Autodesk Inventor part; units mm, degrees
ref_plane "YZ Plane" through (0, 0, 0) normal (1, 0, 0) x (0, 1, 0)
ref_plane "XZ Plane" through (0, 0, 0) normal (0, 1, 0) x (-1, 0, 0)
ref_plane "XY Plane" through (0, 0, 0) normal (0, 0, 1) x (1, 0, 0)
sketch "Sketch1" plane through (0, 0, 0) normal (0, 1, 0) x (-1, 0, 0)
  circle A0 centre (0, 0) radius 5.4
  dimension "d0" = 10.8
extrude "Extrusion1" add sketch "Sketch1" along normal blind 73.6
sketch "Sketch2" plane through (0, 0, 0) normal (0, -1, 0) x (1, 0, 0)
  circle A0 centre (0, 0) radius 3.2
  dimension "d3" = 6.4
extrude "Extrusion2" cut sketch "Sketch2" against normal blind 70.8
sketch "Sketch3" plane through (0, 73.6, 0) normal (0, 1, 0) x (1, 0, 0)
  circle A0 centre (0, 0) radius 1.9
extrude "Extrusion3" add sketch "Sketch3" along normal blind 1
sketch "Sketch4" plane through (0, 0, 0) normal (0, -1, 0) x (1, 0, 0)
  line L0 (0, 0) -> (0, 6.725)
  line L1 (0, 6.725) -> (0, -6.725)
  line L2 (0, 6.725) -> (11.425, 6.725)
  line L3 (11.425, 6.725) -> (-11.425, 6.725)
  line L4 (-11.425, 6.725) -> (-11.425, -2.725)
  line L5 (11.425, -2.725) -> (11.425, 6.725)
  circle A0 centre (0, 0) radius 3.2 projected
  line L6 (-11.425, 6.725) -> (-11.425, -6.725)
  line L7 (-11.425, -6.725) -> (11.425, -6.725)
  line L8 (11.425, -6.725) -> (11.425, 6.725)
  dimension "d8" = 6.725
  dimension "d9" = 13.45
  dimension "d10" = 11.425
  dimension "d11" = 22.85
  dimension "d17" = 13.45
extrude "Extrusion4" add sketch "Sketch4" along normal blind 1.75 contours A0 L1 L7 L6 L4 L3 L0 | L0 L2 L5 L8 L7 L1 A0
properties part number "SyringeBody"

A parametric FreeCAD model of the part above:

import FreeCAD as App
import Part
import Sketcher

V = App.Vector

doc = App.newDocument("Part")
body = doc.addObject("PartDesign::Body", "Body")

# Sketch on XZ plane
sketch1 = body.newObject("Sketcher::SketchObject", "Sketch")
sketch1.AttachmentSupport = (doc.getObject("XZ_Plane"), [""])
sketch1.MapMode = "FlatFace"
sketch1.addGeometry(Part.Circle(V(0, 0, 0), V(0, 0, 1), 5), False)
sketch1.addConstraint([
    Sketcher.Constraint("Coincident", 0, 3, -1, 1),
    Sketcher.Constraint("Diameter", 0, 10.8),
])
pad1 = body.newObject("PartDesign::Pad", "Pad")
pad1.Profile = sketch1
pad1.Length = 73.6
pad1.Reversed = True

# Sketch on XZ plane
sketch2 = body.newObject("Sketcher::SketchObject", "Sketch001")
sketch2.AttachmentSupport = (doc.getObject("XZ_Plane"), [""])
sketch2.MapMode = "FlatFace"
sketch2.addGeometry(Part.Circle(V(0, 0, 0), V(0, 0, 1), 3.2), False)
sketch2.addConstraint([
    Sketcher.Constraint("Coincident", 0, 3, -1, 1),
    Sketcher.Constraint("Diameter", 0, 6.4),
])
pocket1 = body.newObject("PartDesign::Pocket", "Pocket")
pocket1.Profile = sketch2
pocket1.Length = 70.8

# Sketch on XZ plane
sketch3 = body.newObject("Sketcher::SketchObject", "Sketch002")
sketch3.AttachmentSupport = (doc.getObject("XZ_Plane"), [""])
sketch3.MapMode = "FlatFace"
sketch3.AttachmentOffset = App.Placement(V(0, 0, -73.6), App.Rotation())
sketch3.addGeometry(Part.Circle(V(0, 0, 0), V(0, 0, 1), 1.9), False)
sketch3.addConstraint([
    Sketcher.Constraint("Coincident", 0, 3, -1, 1),
    Sketcher.Constraint("Diameter", 0, 3.8),
])
pad2 = body.newObject("PartDesign::Pad", "Pad001")
pad2.Profile = sketch3
pad2.Length = 1
pad2.Reversed = True

# Sketch on XZ plane
sketch4 = body.newObject("Sketcher::SketchObject", "Sketch003")
sketch4.AttachmentSupport = (doc.getObject("XZ_Plane"), [""])
sketch4.MapMode = "FlatFace"
sketch4.addGeometry([
    Part.LineSegment(V(-11.4, -6.7, 0), V(11.4, -6.7, 0)),  # 0
    Part.LineSegment(V(11.4, -6.7, 0), V(11.4, 6.7, 0)),  # 1
    Part.LineSegment(V(11.4, 6.7, 0), V(-11.4, 6.7, 0)),  # 2
    Part.LineSegment(V(-11.4, 6.7, 0), V(-11.4, -6.7, 0)),  # 3
    Part.Circle(V(0, 0, 0), V(0, 0, 1), 3.2),  # 4
], False)
sketch4.addConstraint([
    Sketcher.Constraint("Coincident", 0, 2, 1, 1),
    Sketcher.Constraint("Coincident", 1, 2, 2, 1),
    Sketcher.Constraint("Coincident", 2, 2, 3, 1),
    Sketcher.Constraint("Coincident", 3, 2, 0, 1),
    Sketcher.Constraint("Horizontal", 0),
    Sketcher.Constraint("Vertical", 1),
    Sketcher.Constraint("Horizontal", 2),
    Sketcher.Constraint("Vertical", 3),
    Sketcher.Constraint("Coincident", 4, 3, -1, 1),
    Sketcher.Constraint("Symmetric", 0, 2, 2, 2, -1, 1),
    Sketcher.Constraint("Diameter", 4, 6.4),
    Sketcher.Constraint("DistanceX", 0, 1, 0, 2, 22.85),
    Sketcher.Constraint("DistanceY", 1, 1, 1, 2, 13.45),
])
pad3 = body.newObject("PartDesign::Pad", "Pad002")
pad3.Profile = sketch4
pad3.Length = 1.75

doc.recompute()
